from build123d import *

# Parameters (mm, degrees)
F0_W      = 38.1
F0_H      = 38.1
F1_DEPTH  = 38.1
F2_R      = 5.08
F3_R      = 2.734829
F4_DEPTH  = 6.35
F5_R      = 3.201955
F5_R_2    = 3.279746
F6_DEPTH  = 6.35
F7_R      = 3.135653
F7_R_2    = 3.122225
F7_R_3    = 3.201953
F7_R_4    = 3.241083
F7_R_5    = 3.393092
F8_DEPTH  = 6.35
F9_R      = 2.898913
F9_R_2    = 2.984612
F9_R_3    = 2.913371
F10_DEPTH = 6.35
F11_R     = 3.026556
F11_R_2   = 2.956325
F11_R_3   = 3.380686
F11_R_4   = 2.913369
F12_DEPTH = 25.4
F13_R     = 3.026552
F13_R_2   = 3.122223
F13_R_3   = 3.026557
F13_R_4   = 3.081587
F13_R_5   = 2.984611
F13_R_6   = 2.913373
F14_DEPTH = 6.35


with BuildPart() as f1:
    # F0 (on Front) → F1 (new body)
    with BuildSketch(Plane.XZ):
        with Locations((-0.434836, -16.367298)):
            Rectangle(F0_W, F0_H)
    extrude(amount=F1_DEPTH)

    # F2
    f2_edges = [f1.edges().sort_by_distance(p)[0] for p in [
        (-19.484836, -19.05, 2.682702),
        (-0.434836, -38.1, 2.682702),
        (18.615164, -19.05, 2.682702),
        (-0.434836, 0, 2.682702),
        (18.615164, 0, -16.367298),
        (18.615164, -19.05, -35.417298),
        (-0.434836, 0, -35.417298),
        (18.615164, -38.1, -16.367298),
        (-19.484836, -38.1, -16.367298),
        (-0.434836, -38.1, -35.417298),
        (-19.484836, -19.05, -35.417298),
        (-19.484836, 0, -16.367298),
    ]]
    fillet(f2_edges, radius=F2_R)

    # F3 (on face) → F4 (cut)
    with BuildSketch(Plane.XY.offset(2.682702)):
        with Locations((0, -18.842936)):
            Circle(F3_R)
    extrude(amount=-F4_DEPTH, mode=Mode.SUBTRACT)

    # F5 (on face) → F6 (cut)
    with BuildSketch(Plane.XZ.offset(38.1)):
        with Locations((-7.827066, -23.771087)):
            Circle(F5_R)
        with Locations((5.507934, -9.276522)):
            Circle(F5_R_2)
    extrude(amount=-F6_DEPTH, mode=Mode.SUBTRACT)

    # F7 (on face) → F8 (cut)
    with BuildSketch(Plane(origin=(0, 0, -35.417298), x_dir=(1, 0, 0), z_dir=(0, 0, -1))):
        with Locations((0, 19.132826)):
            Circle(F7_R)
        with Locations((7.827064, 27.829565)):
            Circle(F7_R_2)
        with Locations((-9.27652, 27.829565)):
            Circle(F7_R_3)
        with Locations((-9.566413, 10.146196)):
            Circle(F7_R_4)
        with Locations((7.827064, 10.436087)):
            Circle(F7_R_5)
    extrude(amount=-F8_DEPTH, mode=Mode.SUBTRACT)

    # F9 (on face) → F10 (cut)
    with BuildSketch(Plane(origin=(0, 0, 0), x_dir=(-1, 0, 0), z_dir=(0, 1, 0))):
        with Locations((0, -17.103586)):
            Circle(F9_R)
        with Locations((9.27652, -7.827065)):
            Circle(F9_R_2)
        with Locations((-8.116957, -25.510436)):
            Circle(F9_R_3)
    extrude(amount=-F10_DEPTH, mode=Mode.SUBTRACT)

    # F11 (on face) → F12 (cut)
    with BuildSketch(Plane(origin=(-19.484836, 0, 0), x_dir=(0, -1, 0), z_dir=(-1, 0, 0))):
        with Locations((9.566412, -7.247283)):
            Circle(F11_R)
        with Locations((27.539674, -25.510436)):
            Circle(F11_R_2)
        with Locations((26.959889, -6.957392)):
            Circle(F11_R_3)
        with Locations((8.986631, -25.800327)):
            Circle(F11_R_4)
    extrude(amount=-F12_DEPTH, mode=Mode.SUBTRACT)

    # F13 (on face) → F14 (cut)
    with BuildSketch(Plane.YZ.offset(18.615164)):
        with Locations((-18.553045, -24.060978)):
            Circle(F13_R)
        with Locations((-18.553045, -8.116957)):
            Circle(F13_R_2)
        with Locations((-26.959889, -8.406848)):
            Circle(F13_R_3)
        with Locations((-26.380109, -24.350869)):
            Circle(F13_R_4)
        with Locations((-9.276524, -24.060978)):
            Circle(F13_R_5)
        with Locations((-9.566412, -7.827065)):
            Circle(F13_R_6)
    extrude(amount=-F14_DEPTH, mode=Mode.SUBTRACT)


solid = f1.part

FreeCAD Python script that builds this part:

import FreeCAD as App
import Part
import Sketcher

V = App.Vector
Q = App.Units.Quantity

doc = App.newDocument("Part")
params = doc.addObject("Spreadsheet::Sheet", "Params")
for row, (alias, value) in enumerate([
    ("sketch1_width", "1.5 in"),
    ("pad1_length", "1.5 in"),
    ("fillet_radius", "0.2 in"),
    ("pocket1_length", "0.25 in"),
    ("pocket2_length", "0.25 in"),
    ("pocket3_length", "0.25 in"),
    ("pocket4_length", "0.25 in"),
    ("pocket5_length", "1 in"),
    ("pocket6_length", "0.25 in"),
], start=1):
    params.set(f"A{row}", alias)
    params.set(f"B{row}", "=" + value)
    params.setAlias(f"B{row}", alias)

body = doc.addObject("PartDesign::Body", "Body")

sketch1 = body.newObject("Sketcher::SketchObject", "Sketch")
sketch1.AttachmentSupport = (doc.getObject("XZ_Plane"), [""])
sketch1.MapMode = "FlatFace"
sketch1.addGeometry([
    Part.LineSegment(V(-19, 3, 0), V(-19, -35, 0)),
    Part.LineSegment(V(-19, -35, 0), V(19, -35, 0)),
    Part.LineSegment(V(19, -35, 0), V(19, 3, 0)),
    Part.LineSegment(V(19, 3, 0), V(-19, 3, 0)),
], False)
sketch1.addConstraint([
    Sketcher.Constraint("Coincident", 0, 2, 1, 1),
    Sketcher.Constraint("Coincident", 1, 2, 2, 1),
    Sketcher.Constraint("Coincident", 2, 2, 3, 1),
    Sketcher.Constraint("Coincident", 3, 2, 0, 1),
    Sketcher.Constraint("Vertical", 0),
    Sketcher.Constraint("Horizontal", 1),
    Sketcher.Constraint("Vertical", 2),
    Sketcher.Constraint("Horizontal", 3),
    Sketcher.Constraint("Equal", 3, 0),
    Sketcher.Constraint("DistanceX", 1, 1, 1, 2, Q("1.5 in")),
    Sketcher.Constraint("DistanceY", 0, 2, -1, 1, 35.417298),
    Sketcher.Constraint("DistanceX", 0, 2, -1, 1, 19.484836),
])
sketch1.setExpression("Constraints[9]", "Params.sketch1_width")
pad1 = body.newObject("PartDesign::Pad", "Pad")
pad1.Profile = sketch1
pad1.setExpression("Length", "Params.pad1_length")
doc.recompute()

fillet = body.newObject("PartDesign::Fillet", "Fillet")
fillet.Base = (pad1, ["Edge1"])
fillet.UseAllEdges = True
fillet.setExpression("Radius", "Params.fillet_radius")

sketch2 = body.newObject("Sketcher::SketchObject", "Sketch001")
sketch2.AttachmentSupport = (doc.getObject("XY_Plane"), [""])
sketch2.MapMode = "FlatFace"
sketch2.AttachmentOffset = App.Placement(V(0, 0, 2.682702), App.Rotation())
sketch2.addGeometry(Part.Circle(V(0, -18.8, 0), V(0, 0, 1), 2.7), False)
sketch2.addConstraint([
    Sketcher.Constraint("PointOnObject", 0, 3, -2),
    Sketcher.Constraint("Diameter", 0, 5.469658),
    Sketcher.Constraint("DistanceY", 0, 3, -1, 1, 18.842936),
])
pocket1 = body.newObject("PartDesign::Pocket", "Pocket")
pocket1.Profile = sketch2
pocket1.setExpression("Length", "Params.pocket1_length")

sketch3 = body.newObject("Sketcher::SketchObject", "Sketch002")
sketch3.AttachmentSupport = (doc.getObject("XZ_Plane"), [""])
sketch3.MapMode = "FlatFace"
sketch3.AttachmentOffset = App.Placement(V(0, 0, 1.5 * 25.4), App.Rotation())
sketch3.addGeometry([
    Part.Circle(V(-7.8, -23.8, 0), V(0, 0, 1), 3.2),
    Part.Circle(V(5.5, -9.3, 0), V(0, 0, 1), 3.3),
], False)
sketch3.addConstraint([
    Sketcher.Constraint("Diameter", 0, 6.40391),
    Sketcher.Constraint("Diameter", 1, 6.559492),
    Sketcher.Constraint("DistanceX", 0, 3, 1, 3, Q("0.525 in")),
    Sketcher.Constraint("DistanceX", 0, 3, -1, 1, 7.827066),
    Sketcher.Constraint("DistanceY", 0, 3, -1, 1, 23.771087),
    Sketcher.Constraint("DistanceY", 1, 3, -1, 1, 9.276522),
])
pocket2 = body.newObject("PartDesign::Pocket", "Pocket001")
pocket2.Profile = sketch3
pocket2.setExpression("Length", "Params.pocket2_length")

sketch4 = body.newObject("Sketcher::SketchObject", "Sketch003")
sketch4.AttachmentSupport = (doc.getObject("XY_Plane"), [""])
sketch4.MapMode = "FlatFace"
sketch4.AttachmentOffset = App.Placement(V(0, 0, -35.417298), App.Rotation())
sketch4.addGeometry([
    Part.Circle(V(0, -19.1, 0), V(0, 0, 1), 3.1),
    Part.Circle(V(7.8, -27.8, 0), V(0, 0, 1), 3.1),
    Part.Circle(V(-9.3, -27.8, 0), V(0, 0, 1), 3.2),
    Part.Circle(V(-9.6, -10.1, 0), V(0, 0, 1), 3.2),
    Part.Circle(V(7.8, -10.4, 0), V(0, 0, 1), 3.4),
], False)
sketch4.addConstraint([
    Sketcher.Constraint("PointOnObject", 0, 3, -2),
    Sketcher.Constraint("Horizontal", 1, 3, 2, 3),
    Sketcher.Constraint("Vertical", 1, 3, 4, 3),
    Sketcher.Constraint("Diameter", 1, 6.24445),
    Sketcher.Constraint("Diameter", 0, 6.271306),
    Sketcher.Constraint("Diameter", 2, 6.403906),
    Sketcher.Constraint("Diameter", 3, 6.482166),
    Sketcher.Constraint("Diameter", 4, 6.786184),
    Sketcher.Constraint("DistanceX", 2, 3, -1, 1, 9.27652),
    Sketcher.Constraint("DistanceY", 1, 3, 0, 3, 8.696739),
    Sketcher.Constraint("DistanceY", 0, 3, 3, 3, 8.98663),
    Sketcher.Constraint("DistanceY", 0, 3, 4, 3, 8.696739),
    Sketcher.Constraint("DistanceY", 0, 3, -1, 1, 19.132826),
    Sketcher.Constraint("DistanceX", -1, 1, 1, 3, 7.827064),
    Sketcher.Constraint("DistanceX", 3, 3, -1, 1, 9.566413),
])
pocket3 = body.newObject("PartDesign::Pocket", "Pocket002")
pocket3.Profile = sketch4
pocket3.setExpression("Length", "Params.pocket3_length")
pocket3.Reversed = True

sketch5 = body.newObject("Sketcher::SketchObject", "Sketch004")
sketch5.AttachmentSupport = (doc.getObject("XZ_Plane"), [""])
sketch5.MapMode = "FlatFace"
sketch5.addGeometry([
    Part.Circle(V(0, -17.1, 0), V(0, 0, 1), 2.9),
    Part.Circle(V(-9.3, -7.8, 0), V(0, 0, 1), 3),
    Part.Circle(V(8.1, -25.5, 0), V(0, 0, 1), 2.9),
], False)
sketch5.addConstraint([
    Sketcher.Constraint("PointOnObject", 0, 3, -2),
    Sketcher.Constraint("Diameter", 0, 5.797826),
    Sketcher.Constraint("Diameter", 1, 5.969224),
    Sketcher.Constraint("Diameter", 2, 5.826742),
    Sketcher.Constraint("DistanceX", 1, 3, -1, 1, 9.27652),
    Sketcher.Constraint("DistanceY", 0, 3, 1, 3, 9.276521),
    Sketcher.Constraint("DistanceY", 2, 3, 0, 3, 8.40685),
    Sketcher.Constraint("DistanceY", 0, 3, -1, 1, 17.103586),
    Sketcher.Constraint("DistanceX", -1, 1, 2, 3, 8.116957),
])
pocket4 = body.newObject("PartDesign::Pocket", "Pocket003")
pocket4.Profile = sketch5
pocket4.setExpression("Length", "Params.pocket4_length")
pocket4.Reversed = True

sketch6 = body.newObject("Sketcher::SketchObject", "Sketch005")
sketch6.AttachmentSupport = (doc.getObject("YZ_Plane"), [""])
sketch6.MapMode = "FlatFace"
sketch6.AttachmentOffset = App.Placement(V(0, 0, -19.484836), App.Rotation())
sketch6.addGeometry([
    Part.Circle(V(-9.6, -7.2, 0), V(0, 0, 1), 3),
    Part.Circle(V(-27.5, -25.5, 0), V(0, 0, 1), 3),
    Part.Circle(V(-27, -7, 0), V(0, 0, 1), 3.4),
    Part.Circle(V(-9, -25.8, 0), V(0, 0, 1), 2.9),
], False)
sketch6.addConstraint([
    Sketcher.Constraint("Diameter", 0, 6.053112),
    Sketcher.Constraint("Diameter", 1, 5.91265),
    Sketcher.Constraint("Diameter", 2, 6.761372),
    Sketcher.Constraint("Diameter", 3, 5.826738),
    Sketcher.Constraint("DistanceX", 2, 3, -1, 1, 26.959889),
    Sketcher.Constraint("DistanceY", 2, 3, -1, 1, 6.957392),
    Sketcher.Constraint("DistanceX", 3, 3, -1, 1, 8.986631),
    Sketcher.Constraint("DistanceY", 0, 3, 2, 3, 0.289891),
    Sketcher.Constraint("DistanceY", 3, 3, 1, 3, 0.289891),
    Sketcher.Constraint("DistanceX", 0, 3, 3, 3, 0.579781),
    Sketcher.Constraint("DistanceX", 1, 3, -1, 1, 27.539674),
    Sketcher.Constraint("DistanceY", 1, 3, -1, 1, 25.510436),
])
pocket5 = body.newObject("PartDesign::Pocket", "Pocket004")
pocket5.Profile = sketch6
pocket5.setExpression("Length", "Params.pocket5_length")
pocket5.Reversed = True

sketch7 = body.newObject("Sketcher::SketchObject", "Sketch006")
sketch7.AttachmentSupport = (doc.getObject("YZ_Plane"), [""])
sketch7.MapMode = "FlatFace"
sketch7.AttachmentOffset = App.Placement(V(0, 0, 18.615164), App.Rotation())
sketch7.addGeometry([
    Part.Circle(V(-18.6, -24.1, 0), V(0, 0, 1), 3),
    Part.Circle(V(-18.6, -8.1, 0), V(0, 0, 1), 3.1),
    Part.Circle(V(-27, -8.4, 0), V(0, 0, 1), 3),
    Part.Circle(V(-26.4, -24.4, 0), V(0, 0, 1), 3.1),
    Part.Circle(V(-9.3, -24.1, 0), V(0, 0, 1), 3),
    Part.Circle(V(-9.6, -7.8, 0), V(0, 0, 1), 2.9),
], False)
sketch7.addConstraint([
    Sketcher.Constraint("Horizontal", 0, 3, 4, 3),
    Sketcher.Constraint("Vertical", 0, 3, 1, 3),
    Sketcher.Constraint("Diameter", 0, 6.053104),
    Sketcher.Constraint("Diameter", 1, 6.244446),
    Sketcher.Constraint("Diameter", 2, 6.053114),
    Sketcher.Constraint("Diameter", 3, 6.163174),
    Sketcher.Constraint("Diameter", 4, 5.969222),
    Sketcher.Constraint("Diameter", 5, 5.826746),
    Sketcher.Constraint("DistanceX", 2, 3, -1, 1, 26.959889),
    Sketcher.Constraint("DistanceX", 3, 3, -1, 1, 26.380109),
    Sketcher.Constraint("DistanceY", 3, 3, -1, 1, 24.350869),
    Sketcher.Constraint("DistanceY", 0, 3, 1, 3, 15.944021),
    Sketcher.Constraint("DistanceY", 2, 3, 1, 3, 0.289891),
    Sketcher.Constraint("DistanceY", 3, 3, 0, 3, 0.289891),
    Sketcher.Constraint("DistanceX", 0, 3, 4, 3, 9.276521),
    Sketcher.Constraint("DistanceY", 1, 3, 5, 3, 0.289892),
    Sketcher.Constraint("DistanceX", 0, 3, -1, 1, 18.553045),
    Sketcher.Constraint("DistanceX", 5, 3, -1, 1, 9.566412),
])
pocket6 = body.newObject("PartDesign::Pocket", "Pocket005")
pocket6.Profile = sketch7
pocket6.setExpression("Length", "Params.pocket6_length")

doc.recompute()
